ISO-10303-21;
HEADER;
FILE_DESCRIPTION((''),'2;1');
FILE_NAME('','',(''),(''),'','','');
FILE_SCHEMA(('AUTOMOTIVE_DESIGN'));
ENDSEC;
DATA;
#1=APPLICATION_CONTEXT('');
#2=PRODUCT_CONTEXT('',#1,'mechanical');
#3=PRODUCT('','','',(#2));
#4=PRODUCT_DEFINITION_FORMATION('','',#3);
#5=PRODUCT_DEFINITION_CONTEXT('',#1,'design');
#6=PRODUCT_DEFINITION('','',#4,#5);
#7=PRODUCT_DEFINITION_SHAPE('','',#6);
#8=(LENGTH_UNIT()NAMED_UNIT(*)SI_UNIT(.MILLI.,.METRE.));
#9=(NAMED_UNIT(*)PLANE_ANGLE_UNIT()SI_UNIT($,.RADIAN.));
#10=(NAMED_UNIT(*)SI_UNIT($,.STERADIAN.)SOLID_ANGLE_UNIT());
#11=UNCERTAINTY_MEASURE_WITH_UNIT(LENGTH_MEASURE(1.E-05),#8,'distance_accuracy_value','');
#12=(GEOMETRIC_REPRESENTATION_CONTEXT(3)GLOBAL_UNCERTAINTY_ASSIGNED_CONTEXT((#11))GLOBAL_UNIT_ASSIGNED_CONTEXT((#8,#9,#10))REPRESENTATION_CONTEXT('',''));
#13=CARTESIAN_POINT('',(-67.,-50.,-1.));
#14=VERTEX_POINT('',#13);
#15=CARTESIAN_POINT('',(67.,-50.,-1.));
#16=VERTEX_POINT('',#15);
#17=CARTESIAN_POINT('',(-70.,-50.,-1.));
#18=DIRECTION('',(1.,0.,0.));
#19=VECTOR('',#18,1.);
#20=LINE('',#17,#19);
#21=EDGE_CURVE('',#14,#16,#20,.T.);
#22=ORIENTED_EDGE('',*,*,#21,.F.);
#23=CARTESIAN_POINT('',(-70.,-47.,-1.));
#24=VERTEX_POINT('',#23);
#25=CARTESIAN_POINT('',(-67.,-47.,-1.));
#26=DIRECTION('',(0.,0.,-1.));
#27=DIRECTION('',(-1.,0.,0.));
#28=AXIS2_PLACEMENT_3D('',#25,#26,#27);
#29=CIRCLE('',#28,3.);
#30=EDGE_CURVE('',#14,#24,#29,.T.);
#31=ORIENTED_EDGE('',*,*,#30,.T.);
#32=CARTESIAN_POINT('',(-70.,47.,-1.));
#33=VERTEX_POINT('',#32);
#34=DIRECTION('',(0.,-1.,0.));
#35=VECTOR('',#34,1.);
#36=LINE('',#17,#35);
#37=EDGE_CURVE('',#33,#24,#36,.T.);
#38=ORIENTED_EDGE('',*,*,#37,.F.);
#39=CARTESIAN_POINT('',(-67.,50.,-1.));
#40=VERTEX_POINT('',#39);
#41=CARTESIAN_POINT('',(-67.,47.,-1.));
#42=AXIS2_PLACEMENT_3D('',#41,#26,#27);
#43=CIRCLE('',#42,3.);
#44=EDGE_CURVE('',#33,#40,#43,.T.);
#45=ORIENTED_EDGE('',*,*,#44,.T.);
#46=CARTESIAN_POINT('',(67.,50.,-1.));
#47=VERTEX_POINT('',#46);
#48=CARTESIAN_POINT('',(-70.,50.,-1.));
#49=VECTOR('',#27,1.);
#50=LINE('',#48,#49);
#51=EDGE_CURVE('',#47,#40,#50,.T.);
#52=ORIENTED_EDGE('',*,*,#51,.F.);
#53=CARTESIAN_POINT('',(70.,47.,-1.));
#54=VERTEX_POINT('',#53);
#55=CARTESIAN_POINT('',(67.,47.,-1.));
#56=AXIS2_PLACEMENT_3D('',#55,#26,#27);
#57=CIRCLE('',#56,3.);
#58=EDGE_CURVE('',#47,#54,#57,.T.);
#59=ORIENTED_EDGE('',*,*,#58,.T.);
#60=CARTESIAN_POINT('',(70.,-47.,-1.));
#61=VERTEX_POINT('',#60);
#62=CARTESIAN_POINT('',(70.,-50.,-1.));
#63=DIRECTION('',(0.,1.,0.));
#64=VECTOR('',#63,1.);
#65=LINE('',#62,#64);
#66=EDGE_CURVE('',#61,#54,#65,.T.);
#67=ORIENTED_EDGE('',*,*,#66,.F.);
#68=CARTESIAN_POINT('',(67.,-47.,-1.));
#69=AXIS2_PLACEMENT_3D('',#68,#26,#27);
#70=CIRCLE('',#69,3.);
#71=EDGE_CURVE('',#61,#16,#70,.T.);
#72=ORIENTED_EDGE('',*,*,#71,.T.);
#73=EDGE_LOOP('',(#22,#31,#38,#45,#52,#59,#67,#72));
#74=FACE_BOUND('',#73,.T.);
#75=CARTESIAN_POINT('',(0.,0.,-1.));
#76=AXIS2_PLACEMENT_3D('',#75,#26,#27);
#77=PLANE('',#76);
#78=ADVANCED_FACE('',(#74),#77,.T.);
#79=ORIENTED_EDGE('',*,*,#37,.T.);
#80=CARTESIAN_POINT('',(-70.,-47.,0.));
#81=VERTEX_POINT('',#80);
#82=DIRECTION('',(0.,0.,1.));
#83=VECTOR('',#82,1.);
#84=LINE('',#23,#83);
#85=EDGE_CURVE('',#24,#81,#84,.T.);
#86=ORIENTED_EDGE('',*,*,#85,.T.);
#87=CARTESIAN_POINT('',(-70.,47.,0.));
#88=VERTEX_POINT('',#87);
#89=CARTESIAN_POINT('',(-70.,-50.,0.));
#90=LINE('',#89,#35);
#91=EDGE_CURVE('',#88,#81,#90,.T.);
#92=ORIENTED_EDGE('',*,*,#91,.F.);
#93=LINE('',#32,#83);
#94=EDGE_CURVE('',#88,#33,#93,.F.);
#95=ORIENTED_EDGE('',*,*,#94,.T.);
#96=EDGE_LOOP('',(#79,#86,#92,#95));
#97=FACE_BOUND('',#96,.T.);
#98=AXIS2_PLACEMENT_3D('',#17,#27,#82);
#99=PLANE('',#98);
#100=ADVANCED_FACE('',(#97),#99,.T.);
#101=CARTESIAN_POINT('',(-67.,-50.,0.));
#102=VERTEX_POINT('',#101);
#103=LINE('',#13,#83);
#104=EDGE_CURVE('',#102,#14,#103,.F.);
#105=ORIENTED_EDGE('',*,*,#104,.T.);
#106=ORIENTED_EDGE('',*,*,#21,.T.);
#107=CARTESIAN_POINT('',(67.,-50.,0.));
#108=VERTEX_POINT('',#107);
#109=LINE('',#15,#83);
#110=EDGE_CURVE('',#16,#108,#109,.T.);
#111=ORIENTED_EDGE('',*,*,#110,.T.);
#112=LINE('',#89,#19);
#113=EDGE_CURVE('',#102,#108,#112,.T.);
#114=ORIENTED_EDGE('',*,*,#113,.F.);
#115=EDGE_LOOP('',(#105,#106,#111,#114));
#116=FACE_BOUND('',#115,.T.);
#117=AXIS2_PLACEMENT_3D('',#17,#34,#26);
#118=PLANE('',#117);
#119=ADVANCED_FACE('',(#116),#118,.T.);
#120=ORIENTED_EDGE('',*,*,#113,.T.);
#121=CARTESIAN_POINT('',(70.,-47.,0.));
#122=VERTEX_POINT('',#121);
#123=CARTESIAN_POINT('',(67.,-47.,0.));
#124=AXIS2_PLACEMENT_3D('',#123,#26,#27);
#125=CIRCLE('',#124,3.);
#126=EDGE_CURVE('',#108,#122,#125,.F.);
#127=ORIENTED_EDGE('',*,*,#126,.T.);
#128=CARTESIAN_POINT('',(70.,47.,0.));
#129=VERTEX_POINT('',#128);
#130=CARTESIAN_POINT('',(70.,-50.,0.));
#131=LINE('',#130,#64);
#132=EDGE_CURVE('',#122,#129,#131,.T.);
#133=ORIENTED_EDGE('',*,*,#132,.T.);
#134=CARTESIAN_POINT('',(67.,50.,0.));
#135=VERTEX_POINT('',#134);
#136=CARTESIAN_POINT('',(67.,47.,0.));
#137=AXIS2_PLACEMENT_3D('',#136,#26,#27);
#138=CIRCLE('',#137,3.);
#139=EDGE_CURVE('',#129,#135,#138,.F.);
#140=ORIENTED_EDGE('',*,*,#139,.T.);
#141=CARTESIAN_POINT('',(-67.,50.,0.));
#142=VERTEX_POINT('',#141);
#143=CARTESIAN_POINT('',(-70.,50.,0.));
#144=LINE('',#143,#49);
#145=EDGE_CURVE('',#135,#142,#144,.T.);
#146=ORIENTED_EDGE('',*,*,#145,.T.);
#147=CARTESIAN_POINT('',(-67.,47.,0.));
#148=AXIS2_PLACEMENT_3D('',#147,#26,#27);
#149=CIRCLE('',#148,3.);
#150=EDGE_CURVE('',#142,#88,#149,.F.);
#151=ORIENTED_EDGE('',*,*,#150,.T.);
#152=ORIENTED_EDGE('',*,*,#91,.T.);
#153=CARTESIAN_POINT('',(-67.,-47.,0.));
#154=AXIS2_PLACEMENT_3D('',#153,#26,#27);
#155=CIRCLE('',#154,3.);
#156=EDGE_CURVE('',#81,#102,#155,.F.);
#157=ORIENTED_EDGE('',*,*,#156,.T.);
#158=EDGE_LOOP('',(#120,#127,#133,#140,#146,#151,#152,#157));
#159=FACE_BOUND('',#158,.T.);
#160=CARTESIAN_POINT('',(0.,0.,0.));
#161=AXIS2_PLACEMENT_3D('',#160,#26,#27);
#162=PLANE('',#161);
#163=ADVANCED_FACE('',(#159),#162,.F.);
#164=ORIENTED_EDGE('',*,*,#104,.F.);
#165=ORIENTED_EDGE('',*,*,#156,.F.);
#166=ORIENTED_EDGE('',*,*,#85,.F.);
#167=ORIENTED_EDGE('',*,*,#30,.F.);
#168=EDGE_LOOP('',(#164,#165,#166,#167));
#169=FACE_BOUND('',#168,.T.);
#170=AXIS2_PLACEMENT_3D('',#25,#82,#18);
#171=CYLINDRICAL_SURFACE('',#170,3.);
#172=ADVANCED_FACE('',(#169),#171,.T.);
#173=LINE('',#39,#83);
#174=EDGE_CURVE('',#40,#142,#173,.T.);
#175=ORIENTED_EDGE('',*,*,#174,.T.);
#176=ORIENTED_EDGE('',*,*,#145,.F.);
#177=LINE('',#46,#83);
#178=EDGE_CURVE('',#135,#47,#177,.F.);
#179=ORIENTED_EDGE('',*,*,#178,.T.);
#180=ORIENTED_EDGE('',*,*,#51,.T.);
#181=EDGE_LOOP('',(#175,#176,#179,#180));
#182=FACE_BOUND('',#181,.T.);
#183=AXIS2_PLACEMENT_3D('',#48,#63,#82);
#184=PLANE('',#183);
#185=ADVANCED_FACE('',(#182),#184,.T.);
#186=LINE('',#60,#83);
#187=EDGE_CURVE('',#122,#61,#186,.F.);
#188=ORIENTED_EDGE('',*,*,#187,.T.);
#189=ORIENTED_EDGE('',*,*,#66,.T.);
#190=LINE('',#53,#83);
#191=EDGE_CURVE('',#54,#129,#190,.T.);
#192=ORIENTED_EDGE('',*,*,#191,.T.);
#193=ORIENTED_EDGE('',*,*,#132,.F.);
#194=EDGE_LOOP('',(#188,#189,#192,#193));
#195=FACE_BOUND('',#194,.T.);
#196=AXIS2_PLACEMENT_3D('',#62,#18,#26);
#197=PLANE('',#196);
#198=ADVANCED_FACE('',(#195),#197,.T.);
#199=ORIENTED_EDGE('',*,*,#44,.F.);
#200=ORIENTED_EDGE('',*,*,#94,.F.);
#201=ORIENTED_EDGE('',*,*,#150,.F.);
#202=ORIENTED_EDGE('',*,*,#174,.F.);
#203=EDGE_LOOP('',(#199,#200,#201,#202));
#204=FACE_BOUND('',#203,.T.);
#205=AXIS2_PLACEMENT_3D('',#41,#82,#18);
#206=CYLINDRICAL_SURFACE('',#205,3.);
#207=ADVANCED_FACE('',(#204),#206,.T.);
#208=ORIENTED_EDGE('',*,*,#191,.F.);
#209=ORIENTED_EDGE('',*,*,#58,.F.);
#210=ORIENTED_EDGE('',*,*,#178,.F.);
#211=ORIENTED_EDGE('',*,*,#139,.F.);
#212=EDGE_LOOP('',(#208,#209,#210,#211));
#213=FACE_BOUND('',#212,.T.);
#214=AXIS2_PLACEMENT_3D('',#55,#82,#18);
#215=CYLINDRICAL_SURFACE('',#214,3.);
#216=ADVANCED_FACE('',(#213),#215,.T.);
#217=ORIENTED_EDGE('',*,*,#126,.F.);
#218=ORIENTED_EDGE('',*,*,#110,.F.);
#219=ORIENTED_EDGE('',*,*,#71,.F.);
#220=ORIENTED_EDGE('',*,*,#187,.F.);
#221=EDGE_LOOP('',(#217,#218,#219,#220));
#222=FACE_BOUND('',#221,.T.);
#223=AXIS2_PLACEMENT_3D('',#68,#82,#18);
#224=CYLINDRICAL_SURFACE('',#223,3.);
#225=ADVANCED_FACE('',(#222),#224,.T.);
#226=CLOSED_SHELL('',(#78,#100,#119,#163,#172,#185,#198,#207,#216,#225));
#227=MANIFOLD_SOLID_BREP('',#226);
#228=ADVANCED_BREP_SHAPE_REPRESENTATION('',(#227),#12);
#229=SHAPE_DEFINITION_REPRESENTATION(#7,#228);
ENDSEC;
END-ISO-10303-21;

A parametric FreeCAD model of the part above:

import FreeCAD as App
import Part
import Sketcher
Q = App.Units.Quantity


def edges_at(feature, points):
    """Names of the edges that pass closest to the given points."""
    edges = feature.Shape.Edges
    near = lambda p: min(range(len(edges)), key=lambda i: edges[i].distToShape(Part.Vertex(*p))[0])
    return sorted({f"Edge{near(p) + 1}" for p in points})


def add_polygon(sketch, points):
    """Adds a closed chain of lines whose ends are joined by coincident constraints."""
    first, n = sketch.GeometryCount, len(points)
    for a, b in zip(points, points[1:] + points[:1]):
        sketch.addGeometry(Part.LineSegment(App.Vector(*a, 0), App.Vector(*b, 0)), False)
    for i in range(n):
        sketch.addConstraint(Sketcher.Constraint("Coincident", first + i, 2, first + (i + 1) % n, 1))

doc = App.newDocument("Part")
body = doc.addObject("PartDesign::Body", "Body")

sketch1 = body.newObject("Sketcher::SketchObject", "Sketch")
sketch1.AttachmentSupport = (doc.getObject("XY_Plane"), [""])
sketch1.MapMode = "FlatFace"
add_polygon(sketch1, [(-70, 50), (-70, -50), (70, -50), (70, 50)])
sketch1.addConstraint([
    Sketcher.Constraint("Vertical", 0),
    Sketcher.Constraint("Horizontal", 1),
    Sketcher.Constraint("Vertical", 2),
    Sketcher.Constraint("Horizontal", 3),
    Sketcher.Constraint("Symmetric", 0, 2, 2, 2, -1, 1),
    Sketcher.Constraint("DistanceX", 1, 1, 1, 2, Q("140 mm")),
    Sketcher.Constraint("DistanceY", 0, 2, 0, 1, Q("100 mm")),
])
pad1 = body.newObject("PartDesign::Pad", "Pad")
pad1.Profile = sketch1
pad1.Length = 1
pad1.Reversed = True
doc.recompute()

fillet = body.newObject("PartDesign::Fillet", "Fillet")
fillet.Base = (pad1, edges_at(pad1, [
    (70, -50, -0.5),
    (-70, -50, -0.5),
    (-70, 50, -0.5),
    (70, 50, -0.5),
]))
fillet.Radius = 3

doc.recompute()
